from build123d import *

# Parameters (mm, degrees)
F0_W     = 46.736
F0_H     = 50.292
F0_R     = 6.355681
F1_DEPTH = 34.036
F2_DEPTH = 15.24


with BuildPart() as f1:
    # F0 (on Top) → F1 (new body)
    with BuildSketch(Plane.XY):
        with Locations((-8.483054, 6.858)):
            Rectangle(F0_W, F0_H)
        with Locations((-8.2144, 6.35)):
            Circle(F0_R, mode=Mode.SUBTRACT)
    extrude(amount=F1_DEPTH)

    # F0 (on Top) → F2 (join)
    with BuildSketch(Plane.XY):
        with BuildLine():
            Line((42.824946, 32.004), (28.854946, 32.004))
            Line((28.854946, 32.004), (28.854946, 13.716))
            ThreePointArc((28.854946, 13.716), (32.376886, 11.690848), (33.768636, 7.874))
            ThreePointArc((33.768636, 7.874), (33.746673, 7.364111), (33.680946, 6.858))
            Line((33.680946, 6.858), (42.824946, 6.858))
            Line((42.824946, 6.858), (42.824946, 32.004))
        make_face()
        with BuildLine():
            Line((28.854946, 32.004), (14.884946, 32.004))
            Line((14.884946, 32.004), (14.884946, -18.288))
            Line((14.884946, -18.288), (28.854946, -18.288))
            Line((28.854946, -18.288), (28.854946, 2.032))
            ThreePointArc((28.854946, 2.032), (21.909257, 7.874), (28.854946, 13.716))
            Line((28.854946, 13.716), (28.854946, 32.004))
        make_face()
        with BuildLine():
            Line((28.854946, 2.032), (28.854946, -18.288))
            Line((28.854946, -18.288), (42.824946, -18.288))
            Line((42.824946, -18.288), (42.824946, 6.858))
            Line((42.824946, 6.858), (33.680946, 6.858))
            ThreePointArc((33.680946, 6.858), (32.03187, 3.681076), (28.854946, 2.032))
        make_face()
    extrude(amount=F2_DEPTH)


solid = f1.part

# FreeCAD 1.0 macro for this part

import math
import FreeCAD as App
import Part
import Sketcher
from FreeCAD import Vector
Q = App.Units.Quantity

doc = App.newDocument("Part")
body = doc.addObject("PartDesign::Body", "Body")

# Sketch on XY plane
sketch1 = body.newObject("Sketcher::SketchObject", "Sketch")
sketch1.AttachmentSupport = (doc.getObject("XY_Plane"), [""])
sketch1.MapMode = "FlatFace"
sketch1.addGeometry([
    Part.LineSegment(Vector(-32, 32, 0), Vector(-32, -18, 0)),  # 0
    Part.LineSegment(Vector(-32, -18, 0), Vector(15, -18, 0)),  # 1
    Part.LineSegment(Vector(15, -18, 0), Vector(15, 32, 0)),  # 2
    Part.LineSegment(Vector(15, 32, 0), Vector(-32, 32, 0)),  # 3
    Part.Circle(Vector(-8, 6, 0), Vector(0, 0, 1), 6),  # 4
], False)
sketch1.addConstraint([
    Sketcher.Constraint("Coincident", 0, 2, 1, 1),
    Sketcher.Constraint("Coincident", 1, 2, 2, 1),
    Sketcher.Constraint("Coincident", 2, 2, 3, 1),
    Sketcher.Constraint("Coincident", 3, 2, 0, 1),
    Sketcher.Constraint("Vertical", 0),
    Sketcher.Constraint("Horizontal", 1),
    Sketcher.Constraint("Vertical", 2),
    Sketcher.Constraint("Horizontal", 3),
    Sketcher.Constraint("DistanceX", 1, 1, 1, 2, Q("1.84 in")),
    Sketcher.Constraint("DistanceY", 0, 2, 0, 1, Q("1.98 in")),
    Sketcher.Constraint("DistanceY", -1, 1, 4, 3, Q("0.25 in")),
    Sketcher.Constraint("DistanceY", 0, 2, -1, 1, Q("0.72 in")),
    Sketcher.Constraint("Diameter", 4, Q("12.711362 mm")),
    Sketcher.Constraint("DistanceX", 4, 3, -1, 1, Q("8.2144 mm")),
    Sketcher.Constraint("DistanceX", 0, 2, -1, 1, Q("31.851054 mm")),
])
pad1 = body.newObject("PartDesign::Pad", "Pad")
pad1.Profile = sketch1
pad1.Length = Q("1.34 in")

# Sketch on XY plane
sketch2 = body.newObject("Sketcher::SketchObject", "Sketch001")
sketch2.AttachmentSupport = (doc.getObject("XY_Plane"), [""])
sketch2.MapMode = "FlatFace"
sketch2.addGeometry([
    Part.LineSegment(Vector(42.824946, 32.004, 0), Vector(14.884946, 32.004, 0)),  # 0
    Part.LineSegment(Vector(14.884946, 32.004, 0), Vector(14.884946, -18.288, 0)),  # 1
    Part.LineSegment(Vector(14.884946, -18.288, 0), Vector(42.824946, -18.288, 0)),  # 2
    Part.LineSegment(Vector(42.824946, -18.288, 0), Vector(42.824946, 32.004, 0)),  # 3
    Part.ArcOfCircle(Part.Circle(Vector(27.838947, 7.874, 0), Vector(0, 0, 1), 5.92969), math.radians(80.134199), math.radians(279.865801)),  # 4
    Part.ArcOfCircle(Part.Circle(Vector(27.838948, 7.874001, 0), Vector(0, 0, 1), 5.929688), math.radians(-0.000012), math.radians(80.134209)),  # 5
    Part.ArcOfCircle(Part.Circle(Vector(27.839022, 7.873995, 0), Vector(0, 0, 1), 5.929614), math.radians(-9.865887), math.radians(0.000047)),  # 6
    Part.ArcOfCircle(Part.Circle(Vector(27.838947, 7.873999, 0), Vector(0, 0, 1), 5.929688), math.radians(-80.134202), math.radians(-9.865798)),  # 7
], False)
sketch2.addConstraint([
    Sketcher.Constraint("Coincident", 0, 2, 1, 1),
    Sketcher.Constraint("Coincident", 1, 2, 2, 1),
    Sketcher.Constraint("Coincident", 2, 2, 3, 1),
    Sketcher.Constraint("Coincident", 3, 2, 0, 1),
    Sketcher.Constraint("Coincident", 4, 1, 5, 2),
    Sketcher.Constraint("Coincident", 5, 1, 6, 2),
    Sketcher.Constraint("Coincident", 6, 1, 7, 2),
    Sketcher.Constraint("Coincident", 7, 1, 4, 2),
    Sketcher.Constraint("Horizontal", 0),
    Sketcher.Constraint("Vertical", 1),
    Sketcher.Constraint("Horizontal", 2),
    Sketcher.Constraint("Vertical", 3),
    Sketcher.Constraint("Coincident", 5, 3, 4, 3),
    Sketcher.Constraint("Coincident", 7, 3, 4, 3),
    Sketcher.Constraint("DistanceX", 0, 2, 0, 1, Q("1.1 in")),
    Sketcher.Constraint("DistanceY", 1, 2, 1, 1, Q("1.98 in")),
    Sketcher.Constraint("DistanceY", -1, 1, 4, 3, Q("0.31 in")),
    Sketcher.Constraint("DistanceY", -1, 1, 6, 3, Q("0.3099998 in")),
    Sketcher.Constraint("DistanceY", -1, 1, 0, 2, Q("1.26 in")),
    Sketcher.Constraint("DistanceY", -1, 1, 4, 1, Q("0.54 in")),
    Sketcher.Constraint("DistanceY", -1, 1, 5, 1, Q("0.31 in")),
    Sketcher.Constraint("DistanceY", -1, 1, 6, 1, Q("0.27 in")),
    Sketcher.Constraint("DistanceY", -1, 1, 7, 1, Q("0.08 in")),
    Sketcher.Constraint("DistanceX", 0, 2, 5, 3, Q("0.5100001 in")),
    Sketcher.Constraint("DistanceX", 5, 3, 4, 1, Q("0.0399999 in")),
    Sketcher.Constraint("DistanceX", -1, 1, 4, 3, Q("27.838947 mm")),
])
pad2 = body.newObject("PartDesign::Pad", "Pad001")
pad2.Profile = sketch2
pad2.Length = Q("0.6 in")

doc.recompute()
